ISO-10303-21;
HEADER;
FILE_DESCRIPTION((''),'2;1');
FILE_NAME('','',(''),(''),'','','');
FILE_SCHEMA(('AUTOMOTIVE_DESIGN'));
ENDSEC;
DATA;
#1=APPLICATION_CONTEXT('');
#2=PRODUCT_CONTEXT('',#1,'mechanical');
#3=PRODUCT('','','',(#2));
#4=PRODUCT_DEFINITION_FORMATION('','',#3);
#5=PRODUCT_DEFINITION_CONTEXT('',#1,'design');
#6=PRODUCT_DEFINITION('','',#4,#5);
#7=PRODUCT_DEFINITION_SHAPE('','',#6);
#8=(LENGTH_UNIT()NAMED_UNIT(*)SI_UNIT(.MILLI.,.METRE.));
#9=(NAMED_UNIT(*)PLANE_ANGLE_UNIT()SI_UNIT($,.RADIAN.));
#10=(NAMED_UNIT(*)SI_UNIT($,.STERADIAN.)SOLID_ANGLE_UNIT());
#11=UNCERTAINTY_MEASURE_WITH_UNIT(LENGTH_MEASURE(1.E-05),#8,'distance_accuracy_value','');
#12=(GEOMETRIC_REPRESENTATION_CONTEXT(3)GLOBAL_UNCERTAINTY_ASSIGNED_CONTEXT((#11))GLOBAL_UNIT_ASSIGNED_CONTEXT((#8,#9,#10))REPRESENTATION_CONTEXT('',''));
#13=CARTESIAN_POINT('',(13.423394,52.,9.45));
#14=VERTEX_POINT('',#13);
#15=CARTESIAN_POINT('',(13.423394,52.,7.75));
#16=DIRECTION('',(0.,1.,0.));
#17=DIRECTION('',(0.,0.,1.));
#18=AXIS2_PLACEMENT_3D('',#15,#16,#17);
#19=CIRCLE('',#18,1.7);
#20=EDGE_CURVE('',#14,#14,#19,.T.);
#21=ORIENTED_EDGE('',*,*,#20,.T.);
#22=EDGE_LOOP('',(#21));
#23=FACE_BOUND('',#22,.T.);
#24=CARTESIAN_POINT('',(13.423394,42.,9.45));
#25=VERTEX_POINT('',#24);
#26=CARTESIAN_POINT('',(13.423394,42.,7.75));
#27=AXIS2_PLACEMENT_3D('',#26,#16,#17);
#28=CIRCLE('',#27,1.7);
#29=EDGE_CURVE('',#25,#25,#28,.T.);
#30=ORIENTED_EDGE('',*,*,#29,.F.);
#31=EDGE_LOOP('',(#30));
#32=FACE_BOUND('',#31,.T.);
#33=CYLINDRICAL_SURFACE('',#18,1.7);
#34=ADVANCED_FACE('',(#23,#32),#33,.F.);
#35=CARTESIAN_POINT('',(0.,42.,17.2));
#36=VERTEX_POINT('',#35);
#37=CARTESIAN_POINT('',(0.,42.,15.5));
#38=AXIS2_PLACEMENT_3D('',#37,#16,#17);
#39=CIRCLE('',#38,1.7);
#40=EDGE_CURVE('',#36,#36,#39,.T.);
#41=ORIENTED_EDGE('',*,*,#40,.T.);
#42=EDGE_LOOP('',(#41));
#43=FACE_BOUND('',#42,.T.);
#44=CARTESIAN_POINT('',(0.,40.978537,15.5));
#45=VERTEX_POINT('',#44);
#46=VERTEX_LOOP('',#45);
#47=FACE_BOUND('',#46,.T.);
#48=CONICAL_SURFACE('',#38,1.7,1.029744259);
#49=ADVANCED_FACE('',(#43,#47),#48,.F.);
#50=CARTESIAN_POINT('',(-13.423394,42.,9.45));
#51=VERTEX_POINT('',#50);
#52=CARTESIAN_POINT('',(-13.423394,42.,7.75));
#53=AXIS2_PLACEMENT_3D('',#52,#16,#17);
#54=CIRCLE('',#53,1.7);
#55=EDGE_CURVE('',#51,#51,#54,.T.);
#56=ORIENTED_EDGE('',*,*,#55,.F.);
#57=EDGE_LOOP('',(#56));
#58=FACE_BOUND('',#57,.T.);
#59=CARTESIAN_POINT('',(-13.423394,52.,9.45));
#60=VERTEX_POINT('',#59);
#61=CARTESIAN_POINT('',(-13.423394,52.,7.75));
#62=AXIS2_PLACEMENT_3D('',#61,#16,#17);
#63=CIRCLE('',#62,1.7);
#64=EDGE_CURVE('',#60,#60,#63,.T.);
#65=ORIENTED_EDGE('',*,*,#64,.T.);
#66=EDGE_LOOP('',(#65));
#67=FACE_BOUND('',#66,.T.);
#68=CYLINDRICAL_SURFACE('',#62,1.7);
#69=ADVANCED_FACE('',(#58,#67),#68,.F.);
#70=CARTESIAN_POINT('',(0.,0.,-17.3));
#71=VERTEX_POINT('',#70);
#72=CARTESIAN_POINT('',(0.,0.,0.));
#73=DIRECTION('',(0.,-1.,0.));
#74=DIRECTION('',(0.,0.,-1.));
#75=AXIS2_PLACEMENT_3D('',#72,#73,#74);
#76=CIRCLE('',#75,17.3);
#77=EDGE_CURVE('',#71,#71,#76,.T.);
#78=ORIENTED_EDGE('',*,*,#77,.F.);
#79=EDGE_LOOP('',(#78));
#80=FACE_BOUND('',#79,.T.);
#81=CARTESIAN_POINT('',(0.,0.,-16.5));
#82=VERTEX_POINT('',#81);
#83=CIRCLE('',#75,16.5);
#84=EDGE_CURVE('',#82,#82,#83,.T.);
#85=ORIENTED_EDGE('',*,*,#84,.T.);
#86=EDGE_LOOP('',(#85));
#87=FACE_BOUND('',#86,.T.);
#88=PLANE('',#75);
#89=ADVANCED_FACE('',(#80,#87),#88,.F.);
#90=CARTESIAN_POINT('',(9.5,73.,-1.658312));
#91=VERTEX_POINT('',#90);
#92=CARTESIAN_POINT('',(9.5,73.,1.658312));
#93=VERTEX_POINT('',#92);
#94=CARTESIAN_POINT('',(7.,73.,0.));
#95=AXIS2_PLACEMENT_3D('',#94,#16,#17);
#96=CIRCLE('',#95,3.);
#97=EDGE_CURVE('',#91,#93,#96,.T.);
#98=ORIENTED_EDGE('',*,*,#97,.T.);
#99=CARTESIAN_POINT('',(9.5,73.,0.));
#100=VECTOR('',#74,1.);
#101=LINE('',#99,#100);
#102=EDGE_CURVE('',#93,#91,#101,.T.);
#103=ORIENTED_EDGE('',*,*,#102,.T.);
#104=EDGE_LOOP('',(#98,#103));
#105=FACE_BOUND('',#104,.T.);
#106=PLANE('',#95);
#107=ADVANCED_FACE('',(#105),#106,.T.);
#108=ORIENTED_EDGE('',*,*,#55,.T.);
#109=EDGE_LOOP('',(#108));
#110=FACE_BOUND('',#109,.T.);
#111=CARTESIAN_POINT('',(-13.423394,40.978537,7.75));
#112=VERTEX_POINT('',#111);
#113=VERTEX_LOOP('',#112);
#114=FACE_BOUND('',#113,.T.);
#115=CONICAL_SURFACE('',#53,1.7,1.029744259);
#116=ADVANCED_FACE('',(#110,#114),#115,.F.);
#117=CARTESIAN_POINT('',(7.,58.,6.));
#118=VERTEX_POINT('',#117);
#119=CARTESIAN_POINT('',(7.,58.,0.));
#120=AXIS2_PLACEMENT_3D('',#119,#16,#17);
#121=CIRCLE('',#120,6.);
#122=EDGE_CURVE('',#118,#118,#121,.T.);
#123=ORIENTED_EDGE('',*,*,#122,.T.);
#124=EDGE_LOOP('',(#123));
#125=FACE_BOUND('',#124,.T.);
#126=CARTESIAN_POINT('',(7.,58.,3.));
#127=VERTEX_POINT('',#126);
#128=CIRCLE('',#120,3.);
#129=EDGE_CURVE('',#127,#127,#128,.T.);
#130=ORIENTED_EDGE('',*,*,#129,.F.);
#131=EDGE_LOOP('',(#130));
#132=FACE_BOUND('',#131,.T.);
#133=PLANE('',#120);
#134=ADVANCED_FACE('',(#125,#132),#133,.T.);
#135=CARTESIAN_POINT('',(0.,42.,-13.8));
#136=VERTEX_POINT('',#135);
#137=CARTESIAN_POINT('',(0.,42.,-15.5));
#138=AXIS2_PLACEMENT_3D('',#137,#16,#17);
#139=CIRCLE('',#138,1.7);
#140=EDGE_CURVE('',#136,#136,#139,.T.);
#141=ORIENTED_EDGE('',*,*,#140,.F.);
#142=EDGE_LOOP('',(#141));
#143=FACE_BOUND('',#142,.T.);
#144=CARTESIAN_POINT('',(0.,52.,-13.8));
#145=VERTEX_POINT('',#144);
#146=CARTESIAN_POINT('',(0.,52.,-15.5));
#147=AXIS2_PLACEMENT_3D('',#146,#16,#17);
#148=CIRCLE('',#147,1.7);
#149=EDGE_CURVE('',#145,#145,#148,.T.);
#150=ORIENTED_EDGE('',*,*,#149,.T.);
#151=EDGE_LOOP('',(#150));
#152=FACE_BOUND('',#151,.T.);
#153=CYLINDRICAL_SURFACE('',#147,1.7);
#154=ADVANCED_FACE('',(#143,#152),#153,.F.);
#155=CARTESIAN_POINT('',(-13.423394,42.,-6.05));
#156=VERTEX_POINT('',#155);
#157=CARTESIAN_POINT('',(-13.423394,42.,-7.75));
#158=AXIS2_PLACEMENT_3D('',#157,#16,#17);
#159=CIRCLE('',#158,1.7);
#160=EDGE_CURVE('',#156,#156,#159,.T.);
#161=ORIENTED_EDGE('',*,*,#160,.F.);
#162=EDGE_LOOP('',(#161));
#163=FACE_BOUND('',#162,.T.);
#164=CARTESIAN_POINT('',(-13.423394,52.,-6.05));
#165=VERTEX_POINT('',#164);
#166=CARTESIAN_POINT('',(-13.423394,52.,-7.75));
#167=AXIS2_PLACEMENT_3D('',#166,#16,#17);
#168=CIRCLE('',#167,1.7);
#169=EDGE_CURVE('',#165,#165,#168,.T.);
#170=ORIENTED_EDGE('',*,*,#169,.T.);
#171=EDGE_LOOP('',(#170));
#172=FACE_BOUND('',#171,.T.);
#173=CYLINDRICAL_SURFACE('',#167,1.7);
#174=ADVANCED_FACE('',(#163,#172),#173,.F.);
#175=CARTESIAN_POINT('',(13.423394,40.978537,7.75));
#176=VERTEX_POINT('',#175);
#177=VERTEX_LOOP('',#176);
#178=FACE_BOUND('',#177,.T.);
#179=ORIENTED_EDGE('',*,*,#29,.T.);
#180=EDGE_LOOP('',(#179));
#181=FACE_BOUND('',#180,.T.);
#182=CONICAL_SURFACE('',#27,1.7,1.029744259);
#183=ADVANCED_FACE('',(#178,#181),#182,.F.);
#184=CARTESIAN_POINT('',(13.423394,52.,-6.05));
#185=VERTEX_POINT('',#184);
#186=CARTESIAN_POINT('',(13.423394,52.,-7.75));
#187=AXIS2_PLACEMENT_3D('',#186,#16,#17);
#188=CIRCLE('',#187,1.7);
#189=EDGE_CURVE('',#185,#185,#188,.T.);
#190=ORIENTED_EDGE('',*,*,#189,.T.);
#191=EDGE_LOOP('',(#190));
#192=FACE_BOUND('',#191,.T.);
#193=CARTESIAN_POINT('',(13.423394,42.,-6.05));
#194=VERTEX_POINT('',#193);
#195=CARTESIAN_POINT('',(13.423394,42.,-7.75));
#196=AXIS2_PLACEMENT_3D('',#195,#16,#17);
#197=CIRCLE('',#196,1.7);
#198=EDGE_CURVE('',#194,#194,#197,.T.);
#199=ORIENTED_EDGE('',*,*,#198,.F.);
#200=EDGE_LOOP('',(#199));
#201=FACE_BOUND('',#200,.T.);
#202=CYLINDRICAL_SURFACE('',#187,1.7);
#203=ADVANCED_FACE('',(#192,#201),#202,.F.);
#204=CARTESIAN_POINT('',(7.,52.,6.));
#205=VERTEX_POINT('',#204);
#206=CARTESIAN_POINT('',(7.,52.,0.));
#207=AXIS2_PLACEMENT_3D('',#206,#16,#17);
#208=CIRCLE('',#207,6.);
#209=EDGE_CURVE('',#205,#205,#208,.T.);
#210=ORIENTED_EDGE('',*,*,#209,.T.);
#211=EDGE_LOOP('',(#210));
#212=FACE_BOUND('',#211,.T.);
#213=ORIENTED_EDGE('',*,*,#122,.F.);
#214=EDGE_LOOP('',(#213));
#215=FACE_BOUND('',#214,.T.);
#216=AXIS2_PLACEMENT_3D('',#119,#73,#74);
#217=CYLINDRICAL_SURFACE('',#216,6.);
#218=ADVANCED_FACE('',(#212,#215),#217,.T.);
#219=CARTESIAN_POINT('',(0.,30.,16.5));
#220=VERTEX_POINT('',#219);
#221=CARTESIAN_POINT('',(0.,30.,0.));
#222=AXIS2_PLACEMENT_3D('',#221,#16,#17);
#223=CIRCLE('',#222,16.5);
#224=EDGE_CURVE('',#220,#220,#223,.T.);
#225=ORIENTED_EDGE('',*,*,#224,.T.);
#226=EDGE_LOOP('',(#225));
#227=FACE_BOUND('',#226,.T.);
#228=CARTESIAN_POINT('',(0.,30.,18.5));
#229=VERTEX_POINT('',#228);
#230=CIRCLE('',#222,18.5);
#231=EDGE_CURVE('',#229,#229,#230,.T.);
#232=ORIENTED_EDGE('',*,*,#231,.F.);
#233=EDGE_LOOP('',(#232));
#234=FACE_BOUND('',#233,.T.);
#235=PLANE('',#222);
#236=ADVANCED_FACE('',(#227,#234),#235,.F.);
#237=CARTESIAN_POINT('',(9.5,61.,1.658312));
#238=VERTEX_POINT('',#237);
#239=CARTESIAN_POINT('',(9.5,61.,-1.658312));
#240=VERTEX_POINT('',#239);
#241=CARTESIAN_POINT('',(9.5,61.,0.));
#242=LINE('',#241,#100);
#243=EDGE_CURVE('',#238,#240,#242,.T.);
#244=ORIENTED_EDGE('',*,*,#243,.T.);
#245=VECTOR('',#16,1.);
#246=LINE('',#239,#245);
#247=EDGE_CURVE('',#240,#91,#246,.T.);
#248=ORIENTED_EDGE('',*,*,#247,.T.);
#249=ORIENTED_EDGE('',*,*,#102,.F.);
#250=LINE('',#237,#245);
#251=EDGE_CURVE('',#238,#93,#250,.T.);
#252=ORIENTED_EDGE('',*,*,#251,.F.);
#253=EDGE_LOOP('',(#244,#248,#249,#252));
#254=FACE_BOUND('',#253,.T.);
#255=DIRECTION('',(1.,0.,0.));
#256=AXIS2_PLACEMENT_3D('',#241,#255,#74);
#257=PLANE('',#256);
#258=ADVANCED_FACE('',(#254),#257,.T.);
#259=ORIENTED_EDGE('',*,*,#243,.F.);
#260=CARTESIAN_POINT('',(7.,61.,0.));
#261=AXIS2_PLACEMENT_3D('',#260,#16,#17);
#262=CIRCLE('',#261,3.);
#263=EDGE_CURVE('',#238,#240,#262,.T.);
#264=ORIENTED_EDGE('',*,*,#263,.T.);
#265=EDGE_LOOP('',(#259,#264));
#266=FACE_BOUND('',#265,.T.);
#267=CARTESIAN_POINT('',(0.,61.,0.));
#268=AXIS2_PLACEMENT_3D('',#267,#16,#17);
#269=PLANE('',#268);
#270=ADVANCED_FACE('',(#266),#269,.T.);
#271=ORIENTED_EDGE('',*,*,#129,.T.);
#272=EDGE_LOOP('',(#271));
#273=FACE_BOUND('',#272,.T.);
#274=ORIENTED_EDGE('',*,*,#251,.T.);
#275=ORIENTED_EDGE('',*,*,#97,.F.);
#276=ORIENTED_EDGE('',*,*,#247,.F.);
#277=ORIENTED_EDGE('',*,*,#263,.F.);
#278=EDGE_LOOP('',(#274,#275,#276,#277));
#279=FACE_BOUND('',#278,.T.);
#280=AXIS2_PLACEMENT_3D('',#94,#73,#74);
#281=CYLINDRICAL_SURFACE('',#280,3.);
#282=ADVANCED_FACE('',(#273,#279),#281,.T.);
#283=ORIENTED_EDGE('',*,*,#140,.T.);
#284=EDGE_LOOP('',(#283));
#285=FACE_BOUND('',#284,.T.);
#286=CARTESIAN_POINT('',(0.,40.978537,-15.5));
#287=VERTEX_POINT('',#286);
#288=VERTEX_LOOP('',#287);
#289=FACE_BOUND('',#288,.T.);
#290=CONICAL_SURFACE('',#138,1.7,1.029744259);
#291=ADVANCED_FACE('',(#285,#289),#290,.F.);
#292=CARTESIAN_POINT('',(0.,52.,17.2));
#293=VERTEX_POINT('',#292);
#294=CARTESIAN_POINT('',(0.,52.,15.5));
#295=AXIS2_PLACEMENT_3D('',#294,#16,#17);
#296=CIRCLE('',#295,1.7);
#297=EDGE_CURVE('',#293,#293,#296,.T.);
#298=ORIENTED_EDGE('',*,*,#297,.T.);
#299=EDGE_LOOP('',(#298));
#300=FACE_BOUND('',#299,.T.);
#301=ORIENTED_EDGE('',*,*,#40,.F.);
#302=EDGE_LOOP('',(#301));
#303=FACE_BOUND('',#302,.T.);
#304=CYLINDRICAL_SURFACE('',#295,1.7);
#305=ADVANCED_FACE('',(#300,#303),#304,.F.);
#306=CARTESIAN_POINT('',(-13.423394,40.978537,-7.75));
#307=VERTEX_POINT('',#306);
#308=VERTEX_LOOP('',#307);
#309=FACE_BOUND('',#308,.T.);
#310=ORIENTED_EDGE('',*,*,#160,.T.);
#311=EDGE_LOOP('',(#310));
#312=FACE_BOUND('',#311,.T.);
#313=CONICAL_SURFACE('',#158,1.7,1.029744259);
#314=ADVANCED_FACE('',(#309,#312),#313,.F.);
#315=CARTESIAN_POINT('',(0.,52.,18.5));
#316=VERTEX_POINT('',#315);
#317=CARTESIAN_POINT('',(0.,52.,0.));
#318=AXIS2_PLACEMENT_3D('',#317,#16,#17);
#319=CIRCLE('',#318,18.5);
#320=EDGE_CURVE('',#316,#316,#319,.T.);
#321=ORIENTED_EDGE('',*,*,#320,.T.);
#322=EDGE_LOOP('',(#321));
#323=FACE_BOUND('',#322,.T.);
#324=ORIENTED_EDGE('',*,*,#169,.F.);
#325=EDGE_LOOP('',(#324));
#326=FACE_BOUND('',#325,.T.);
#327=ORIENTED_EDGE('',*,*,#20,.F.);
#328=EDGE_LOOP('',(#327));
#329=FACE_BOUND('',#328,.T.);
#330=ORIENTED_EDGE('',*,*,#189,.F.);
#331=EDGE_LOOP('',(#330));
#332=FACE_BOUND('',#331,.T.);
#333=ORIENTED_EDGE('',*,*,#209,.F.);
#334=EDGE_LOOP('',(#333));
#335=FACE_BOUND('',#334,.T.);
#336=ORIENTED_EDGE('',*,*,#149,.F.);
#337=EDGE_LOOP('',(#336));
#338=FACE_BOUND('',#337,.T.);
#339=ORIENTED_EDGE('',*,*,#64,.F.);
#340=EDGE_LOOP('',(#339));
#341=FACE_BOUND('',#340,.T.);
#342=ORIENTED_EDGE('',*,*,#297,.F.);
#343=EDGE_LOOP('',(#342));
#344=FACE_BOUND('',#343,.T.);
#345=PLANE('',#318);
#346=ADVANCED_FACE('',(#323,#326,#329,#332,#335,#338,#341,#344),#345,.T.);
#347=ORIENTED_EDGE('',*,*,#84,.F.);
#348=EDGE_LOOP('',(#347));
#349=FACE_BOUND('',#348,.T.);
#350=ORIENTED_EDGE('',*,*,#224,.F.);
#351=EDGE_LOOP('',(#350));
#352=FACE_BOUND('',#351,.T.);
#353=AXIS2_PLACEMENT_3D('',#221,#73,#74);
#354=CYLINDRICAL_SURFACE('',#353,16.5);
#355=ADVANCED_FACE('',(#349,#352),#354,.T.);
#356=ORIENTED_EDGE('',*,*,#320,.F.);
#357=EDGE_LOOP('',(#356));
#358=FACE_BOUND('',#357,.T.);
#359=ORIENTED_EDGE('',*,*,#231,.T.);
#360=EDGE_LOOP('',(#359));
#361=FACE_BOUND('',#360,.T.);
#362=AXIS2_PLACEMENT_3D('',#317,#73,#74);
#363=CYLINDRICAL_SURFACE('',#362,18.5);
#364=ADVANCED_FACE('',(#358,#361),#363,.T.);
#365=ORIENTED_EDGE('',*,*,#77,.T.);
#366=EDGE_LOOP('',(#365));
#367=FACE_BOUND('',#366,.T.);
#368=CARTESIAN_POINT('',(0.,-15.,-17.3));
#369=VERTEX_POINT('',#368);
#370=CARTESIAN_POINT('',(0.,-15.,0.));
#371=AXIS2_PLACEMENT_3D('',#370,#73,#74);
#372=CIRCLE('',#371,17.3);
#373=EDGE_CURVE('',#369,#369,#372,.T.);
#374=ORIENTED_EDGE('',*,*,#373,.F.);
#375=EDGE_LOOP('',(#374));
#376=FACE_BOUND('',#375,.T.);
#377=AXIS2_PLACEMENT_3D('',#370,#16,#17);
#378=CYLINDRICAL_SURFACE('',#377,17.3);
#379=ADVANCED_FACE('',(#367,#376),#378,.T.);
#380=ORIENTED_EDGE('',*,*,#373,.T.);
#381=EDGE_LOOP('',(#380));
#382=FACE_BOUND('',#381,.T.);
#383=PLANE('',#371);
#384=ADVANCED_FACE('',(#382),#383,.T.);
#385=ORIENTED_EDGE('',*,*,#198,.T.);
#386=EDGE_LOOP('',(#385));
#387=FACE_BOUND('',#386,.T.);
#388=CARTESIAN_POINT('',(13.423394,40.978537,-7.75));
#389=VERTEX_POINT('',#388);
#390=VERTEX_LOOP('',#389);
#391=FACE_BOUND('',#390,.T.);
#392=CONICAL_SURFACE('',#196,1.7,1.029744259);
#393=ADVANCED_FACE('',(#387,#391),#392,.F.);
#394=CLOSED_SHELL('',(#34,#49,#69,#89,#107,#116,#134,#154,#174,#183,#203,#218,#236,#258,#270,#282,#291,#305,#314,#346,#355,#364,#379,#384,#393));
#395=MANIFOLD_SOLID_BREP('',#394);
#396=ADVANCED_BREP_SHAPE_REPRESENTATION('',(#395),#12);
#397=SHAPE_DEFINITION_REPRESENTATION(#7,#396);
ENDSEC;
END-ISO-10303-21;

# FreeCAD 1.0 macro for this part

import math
import FreeCAD as App
import Part
import Sketcher
Q = App.Units.Quantity

doc = App.newDocument("Part")
body = doc.addObject("PartDesign::Body", "Body")

# Sketch on XZ plane
sketch1 = body.newObject("Sketcher::SketchObject", "Sketch")
sketch1.AttachmentSupport = (doc.getObject("XZ_Plane"), [""])
sketch1.MapMode = "FlatFace"
sketch1.addGeometry(Part.Circle(App.Vector(0, 0, 0), App.Vector(0, 0, 1), 16), False)
sketch1.addConstraint([
    Sketcher.Constraint("Coincident", 0, 3, -1, 1),
    Sketcher.Constraint("Diameter", 0, Q("33 mm")),
])
pad1 = body.newObject("PartDesign::Pad", "Pad")
pad1.Profile = sketch1
pad1.Length = 30
pad1.Reversed = True

# Sketch on XZ plane
sketch2 = body.newObject("Sketcher::SketchObject", "Sketch001")
sketch2.AttachmentSupport = (doc.getObject("XZ_Plane"), [""])
sketch2.MapMode = "FlatFace"
sketch2.addGeometry(Part.Circle(App.Vector(0, 0, 0), App.Vector(0, 0, 1), 2), False)
sketch2.addConstraint([
    Sketcher.Constraint("Coincident", 0, 3, -1, 1),
    Sketcher.Constraint("Diameter", 0, Q("4 mm")),
])
pad2 = body.newObject("PartDesign::Pad", "Pad001")
pad2.Profile = sketch2
pad2.Length = 2

# Sketch on XZ plane
sketch3 = body.newObject("Sketcher::SketchObject", "Sketch002")
sketch3.AttachmentSupport = (doc.getObject("XZ_Plane"), [""])
sketch3.MapMode = "FlatFace"
sketch3.AttachmentOffset = App.Placement(App.Vector(0, 0, -30), App.Rotation())
sketch3.addGeometry(Part.Circle(App.Vector(0, 0, 0), App.Vector(0, 0, 1), 18), False)
sketch3.addConstraint([
    Sketcher.Constraint("Coincident", 0, 3, -1, 1),
    Sketcher.Constraint("Diameter", 0, Q("37 mm")),
])
pad3 = body.newObject("PartDesign::Pad", "Pad002")
pad3.Profile = sketch3
pad3.Length = 22
pad3.Reversed = True

# Sketch on XZ plane
sketch4 = body.newObject("Sketcher::SketchObject", "Sketch003")
sketch4.AttachmentSupport = (doc.getObject("XZ_Plane"), [""])
sketch4.MapMode = "FlatFace"
sketch4.AttachmentOffset = App.Placement(App.Vector(0, 0, -52), App.Rotation())
sketch4.addGeometry(Part.Circle(App.Vector(7, 0, 0), App.Vector(0, 0, 1), 6), False)
sketch4.addConstraint([
    Sketcher.Constraint("PointOnObject", 0, 3, -1),
    Sketcher.Constraint("Diameter", 0, Q("12 mm")),
    Sketcher.Constraint("DistanceX", -1, 1, 0, 3, Q("7 mm")),
])
pad4 = body.newObject("PartDesign::Pad", "Pad003")
pad4.Profile = sketch4
pad4.Length = 6
pad4.Reversed = True

# Sketch on XZ plane
sketch5 = body.newObject("Sketcher::SketchObject", "Sketch004")
sketch5.AttachmentSupport = (doc.getObject("XZ_Plane"), [""])
sketch5.MapMode = "FlatFace"
sketch5.AttachmentOffset = App.Placement(App.Vector(0, 0, -58), App.Rotation())
sketch5.addGeometry(Part.Circle(App.Vector(7, 0, 0), App.Vector(0, 0, 1), 3), False)
sketch5.addConstraint([
    Sketcher.Constraint("PointOnObject", 0, 3, -1),
    Sketcher.Constraint("Diameter", 0, Q("6 mm")),
    Sketcher.Constraint("DistanceX", -1, 1, 0, 3, Q("7 mm")),
])
pad5 = body.newObject("PartDesign::Pad", "Pad004")
pad5.Profile = sketch5
pad5.Length = 15
pad5.Reversed = True

# Sketch on XZ plane
sketch6 = body.newObject("Sketcher::SketchObject", "Sketch005")
sketch6.AttachmentSupport = (doc.getObject("XZ_Plane"), [""])
sketch6.MapMode = "FlatFace"
sketch6.AttachmentOffset = App.Placement(App.Vector(0, 0, -61), App.Rotation())
sketch6.addGeometry([
    Part.ArcOfCircle(Part.Circle(App.Vector(7, 0, 0), App.Vector(0, 0, 1), 3), math.radians(0), math.radians(34)),
    Part.ArcOfCircle(Part.Circle(App.Vector(7, 0, 0), App.Vector(0, 0, 1), 3), math.radians(-34), math.radians(0)),
    Part.LineSegment(App.Vector(9.5, -1.7, 0), App.Vector(9.5, 1.7, 0)),
], False)
sketch6.addConstraint([
    Sketcher.Constraint("Tangent", 0, 1, 1, 2),
    Sketcher.Constraint("Coincident", 1, 1, 2, 1),
    Sketcher.Constraint("Coincident", 2, 2, 0, 2),
    Sketcher.Constraint("Vertical", 2),
    Sketcher.Constraint("Equal", 0, 1),
    Sketcher.Constraint("PointOnObject", 0, 3, -1),
    Sketcher.Constraint("PointOnObject", 0, 1, -1),
    Sketcher.Constraint("Radius", 0, Q("3 mm")),
    Sketcher.Constraint("DistanceX", -1, 1, 0, 3, Q("7 mm")),
    Sketcher.Constraint("DistanceX", -1, 1, 1, 1, Q("9.5 mm")),
])
pocket1 = body.newObject("PartDesign::Pocket", "Pocket")
pocket1.Profile = sketch6
pocket1.Length = 12

# Sketch on XZ plane
sketch7 = body.newObject("Sketcher::SketchObject", "Sketch006")
sketch7.AttachmentSupport = (doc.getObject("XZ_Plane"), [""])
sketch7.MapMode = "FlatFace"
sketch7.AttachmentOffset = App.Placement(App.Vector(0, 0, -52), App.Rotation())
sketch7.addGeometry([
    Part.Circle(App.Vector(0, 15.5, 0), App.Vector(0, 0, 1), 1.7),  # 0
    Part.Circle(App.Vector(-13.4, 7.8, 0), App.Vector(0, 0, 1), 1.7),  # 1
    Part.Circle(App.Vector(0, -15.5, 0), App.Vector(0, 0, 1), 1.7),  # 2
    Part.Circle(App.Vector(-13.4, -7.8, 0), App.Vector(0, 0, 1), 1.7),  # 3
    Part.Circle(App.Vector(13.4, 7.8, 0), App.Vector(0, 0, 1), 1.7),  # 4
    Part.Circle(App.Vector(13.4, -7.8, 0), App.Vector(0, 0, 1), 1.7),  # 5
], False)
sketch7.addConstraint([
    Sketcher.Constraint("Equal", 0, 1),
    Sketcher.Constraint("Equal", 1, 2),
    Sketcher.Constraint("Equal", 2, 3),
    Sketcher.Constraint("Equal", 3, 4),
    Sketcher.Constraint("Equal", 4, 5),
    Sketcher.Constraint("Symmetric", 0, 3, 2, 3, -1, 1),
    Sketcher.Constraint("Symmetric", 3, 3, 4, 3, -1, 1),
    Sketcher.Constraint("Symmetric", 1, 3, 5, 3, -1, 1),
    Sketcher.Constraint("Symmetric", 1, 3, 4, 3, -2),
    Sketcher.Constraint("PointOnObject", 0, 3, -2),
    Sketcher.Constraint("Diameter", 0, Q("3.4 mm")),
    Sketcher.Constraint("DistanceY", 2, 3, 0, 3, Q("31 mm")),
    Sketcher.Constraint("DistanceY", 3, 3, 1, 3, Q("15.5 mm")),
    Sketcher.Constraint("DistanceX", 1, 3, -1, 1, Q("13.423394 mm")),
])
doc.recompute()
hole = body.newObject("PartDesign::Hole", "Hole")
hole.Profile = sketch7
hole.ThreadType = "None"
hole.Diameter = 3.4
hole.DepthType = "Dimension"
hole.Depth = 10
hole.DrillPoint = "Angled"
hole.DrillPointAngle = 118
hole.Reversed = True

# Sketch on XZ plane
sketch8 = body.newObject("Sketcher::SketchObject", "Sketch007")
sketch8.AttachmentSupport = (doc.getObject("XZ_Plane"), [""])
sketch8.MapMode = "FlatFace"
sketch8.addGeometry(Part.Circle(App.Vector(0, 0, 0), App.Vector(0, 0, 1), 17), False)
sketch8.addConstraint([
    Sketcher.Constraint("Coincident", 0, 3, -1, 1),
    Sketcher.Constraint("Diameter", 0, Q("34.6 mm")),
])
pad6 = body.newObject("PartDesign::Pad", "Pad005")
pad6.Profile = sketch8
pad6.Length = 15

doc.recompute()
